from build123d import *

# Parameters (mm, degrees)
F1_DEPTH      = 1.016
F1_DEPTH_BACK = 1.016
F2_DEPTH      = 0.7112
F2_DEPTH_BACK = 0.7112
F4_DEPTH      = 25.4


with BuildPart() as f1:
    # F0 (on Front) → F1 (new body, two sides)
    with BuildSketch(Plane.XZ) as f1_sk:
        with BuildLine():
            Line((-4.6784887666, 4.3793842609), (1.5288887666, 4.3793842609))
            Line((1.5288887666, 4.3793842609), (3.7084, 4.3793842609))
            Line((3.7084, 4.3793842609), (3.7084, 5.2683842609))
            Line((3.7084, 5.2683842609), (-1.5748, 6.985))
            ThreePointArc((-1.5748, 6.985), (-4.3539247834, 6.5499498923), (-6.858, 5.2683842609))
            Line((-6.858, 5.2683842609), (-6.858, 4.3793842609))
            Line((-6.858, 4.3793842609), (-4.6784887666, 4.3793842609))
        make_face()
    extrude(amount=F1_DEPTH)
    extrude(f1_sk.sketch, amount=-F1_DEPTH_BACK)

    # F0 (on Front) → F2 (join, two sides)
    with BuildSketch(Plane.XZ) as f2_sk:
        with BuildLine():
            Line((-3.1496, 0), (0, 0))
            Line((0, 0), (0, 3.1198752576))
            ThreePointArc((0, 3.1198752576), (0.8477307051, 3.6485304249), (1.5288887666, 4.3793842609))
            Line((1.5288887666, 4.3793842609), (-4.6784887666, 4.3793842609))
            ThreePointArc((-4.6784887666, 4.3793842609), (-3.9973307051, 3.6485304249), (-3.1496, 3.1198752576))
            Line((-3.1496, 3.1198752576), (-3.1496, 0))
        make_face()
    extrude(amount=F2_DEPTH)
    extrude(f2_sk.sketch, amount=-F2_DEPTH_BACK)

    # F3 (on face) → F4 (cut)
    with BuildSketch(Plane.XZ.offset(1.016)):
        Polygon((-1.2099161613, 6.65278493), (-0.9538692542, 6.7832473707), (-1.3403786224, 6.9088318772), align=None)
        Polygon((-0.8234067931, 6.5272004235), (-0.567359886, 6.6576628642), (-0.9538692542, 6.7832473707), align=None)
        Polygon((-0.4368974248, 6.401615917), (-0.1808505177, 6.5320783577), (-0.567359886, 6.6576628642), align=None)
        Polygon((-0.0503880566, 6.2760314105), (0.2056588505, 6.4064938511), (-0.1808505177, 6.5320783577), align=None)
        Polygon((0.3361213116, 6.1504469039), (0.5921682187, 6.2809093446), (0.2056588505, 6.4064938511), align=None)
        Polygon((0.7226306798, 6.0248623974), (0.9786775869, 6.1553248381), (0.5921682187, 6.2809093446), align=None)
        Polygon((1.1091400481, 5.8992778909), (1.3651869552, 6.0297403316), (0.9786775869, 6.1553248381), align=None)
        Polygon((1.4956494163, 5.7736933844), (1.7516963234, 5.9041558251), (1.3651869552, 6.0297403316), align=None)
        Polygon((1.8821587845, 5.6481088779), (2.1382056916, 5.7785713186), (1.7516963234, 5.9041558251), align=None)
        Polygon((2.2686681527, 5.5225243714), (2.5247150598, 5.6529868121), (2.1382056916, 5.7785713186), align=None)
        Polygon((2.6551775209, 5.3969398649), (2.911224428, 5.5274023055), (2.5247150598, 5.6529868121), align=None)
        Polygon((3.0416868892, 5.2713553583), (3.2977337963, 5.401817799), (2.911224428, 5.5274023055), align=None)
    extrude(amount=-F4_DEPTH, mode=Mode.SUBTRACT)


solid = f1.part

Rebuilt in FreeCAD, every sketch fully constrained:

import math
import FreeCAD as App
import Part
import Sketcher
from FreeCAD import Vector
Q = App.Units.Quantity


def add_polygon(sketch, points):
    """Adds a closed chain of lines whose ends are joined by coincident constraints."""
    first, n = sketch.GeometryCount, len(points)
    for a, b in zip(points, points[1:] + points[:1]):
        sketch.addGeometry(Part.LineSegment(App.Vector(*a, 0), App.Vector(*b, 0)), False)
    for i in range(n):
        sketch.addConstraint(Sketcher.Constraint("Coincident", first + i, 2, first + (i + 1) % n, 1))

doc = App.newDocument("Part")
body = doc.addObject("PartDesign::Body", "Body")

sketch1 = body.newObject("Sketcher::SketchObject", "Sketch")
sketch1.AttachmentSupport = (doc.getObject("XZ_Plane"), [""])
sketch1.MapMode = "FlatFace"
sketch1.addGeometry(Part.LineSegment(Vector(3.7, 4.4, 0), Vector(3.7, 5.3, 0)), False)
sketch1.addGeometry(Part.LineSegment(Vector(3.7, 5.3, 0), Vector(-1.6, 7, 0)), False)
sketch1.addGeometry(Part.ArcOfCircle(Part.Circle(Vector(-1.6, -1.9, 0), Vector(0, 0, 1), 8.9), math.radians(90), math.radians(126)), False)
sketch1.addGeometry(Part.LineSegment(Vector(-6.9, 5.3, 0), Vector(-6.9, 4.4, 0)), False)
sketch1.addGeometry(Part.LineSegment(Vector(-6.9, 4.4, 0), Vector(3.7, 4.4, 0)), False)
sketch1.addConstraint(Sketcher.Constraint("Coincident", 0, 2, 1, 1))
sketch1.addConstraint(Sketcher.Constraint("Coincident", 1, 2, 2, 1))
sketch1.addConstraint(Sketcher.Constraint("Coincident", 2, 2, 3, 1))
sketch1.addConstraint(Sketcher.Constraint("Coincident", 3, 2, 4, 1))
sketch1.addConstraint(Sketcher.Constraint("Coincident", 4, 2, 0, 1))
sketch1.addConstraint(Sketcher.Constraint("Vertical", 0))
sketch1.addConstraint(Sketcher.Constraint("Vertical", 3))
sketch1.addConstraint(Sketcher.Constraint("Horizontal", 4))
sketch1.addConstraint(Sketcher.Constraint("Horizontal", 0, 2, 2, 2))
sketch1.addConstraint(Sketcher.Constraint("Radius", 2, Q("0.35 in")))
sketch1.addConstraint(Sketcher.Constraint("Angle", 1, Q("162 deg")))
sketch1.addConstraint(Sketcher.Constraint("DistanceX", 4, 1, 4, 2, Q("0.416 in")))
sketch1.addConstraint(Sketcher.Constraint("DistanceY", 0, 1, 0, 2, Q("0.035 in")))
sketch1.addConstraint(Sketcher.Constraint("DistanceX", 2, 2, -1, 1, Q("0.27 in")))
sketch1.addConstraint(Sketcher.Constraint("DistanceX", 1, 2, -1, 1, Q("0.062 in")))
sketch1.addConstraint(Sketcher.Constraint("DistanceY", -1, 1, 1, 2, Q("0.275 in")))
pad1 = body.newObject("PartDesign::Pad", "Pad")
pad1.Profile = sketch1
pad1.Type = "TwoLengths"
pad1.Length = Q("0.04 in")
pad1.Length2 = Q("0.04 in")

sketch2 = body.newObject("Sketcher::SketchObject", "Sketch001")
sketch2.AttachmentSupport = (doc.getObject("XZ_Plane"), [""])
sketch2.MapMode = "FlatFace"
sketch2.addGeometry(Part.LineSegment(Vector(-3.1, 0, 0), Vector(0, 0, 0)), False)
sketch2.addGeometry(Part.LineSegment(Vector(0, 0, 0), Vector(0, 3.1, 0)), False)
sketch2.addGeometry(Part.ArcOfCircle(Part.Circle(Vector(-1.6, 6.6, 0), Vector(0, 0, 1), 3.8), math.radians(-66), math.radians(-35)), False)
sketch2.addGeometry(Part.LineSegment(Vector(1.5, 4.4, 0), Vector(-4.7, 4.4, 0)), False)
sketch2.addGeometry(Part.ArcOfCircle(Part.Circle(Vector(-1.6, 6.6, 0), Vector(0, 0, 1), 3.8), math.radians(-145), math.radians(-114)), False)
sketch2.addGeometry(Part.LineSegment(Vector(-3.1, 3.1, 0), Vector(-3.1, 0, 0)), False)
sketch2.addConstraint(Sketcher.Constraint("Coincident", 0, 2, 1, 1))
sketch2.addConstraint(Sketcher.Constraint("Coincident", 1, 2, 2, 1))
sketch2.addConstraint(Sketcher.Constraint("Coincident", 2, 2, 3, 1))
sketch2.addConstraint(Sketcher.Constraint("Coincident", 3, 2, 4, 1))
sketch2.addConstraint(Sketcher.Constraint("Coincident", 4, 2, 5, 1))
sketch2.addConstraint(Sketcher.Constraint("Coincident", 5, 2, 0, 1))
sketch2.addConstraint(Sketcher.Constraint("Horizontal", 0))
sketch2.addConstraint(Sketcher.Constraint("Vertical", 1))
sketch2.addConstraint(Sketcher.Constraint("Horizontal", 3))
sketch2.addConstraint(Sketcher.Constraint("Vertical", 5))
sketch2.addConstraint(Sketcher.Constraint("Coincident", 0, 2, -1, 1))
sketch2.addConstraint(Sketcher.Constraint("Coincident", 4, 3, 2, 3))
sketch2.addConstraint(Sketcher.Constraint("Equal", 2, 4))
sketch2.addConstraint(Sketcher.Constraint("Horizontal", 1, 2, 4, 2))
sketch2.addConstraint(Sketcher.Constraint("Radius", 2, Q("0.15 in")))
sketch2.addConstraint(Sketcher.Constraint("DistanceX", 0, 1, 0, 2, Q("0.124 in")))
sketch2.addConstraint(Sketcher.Constraint("DistanceY", 2, 2, 2, 3, Q("0.087 in")))
sketch2.addConstraint(Sketcher.Constraint("DistanceY", 1, 1, 1, 2, 3.119875))
pad2 = body.newObject("PartDesign::Pad", "Pad001")
pad2.Profile = sketch2
pad2.Type = "TwoLengths"
pad2.Length = Q("0.028 in")
pad2.Length2 = Q("0.028 in")

sketch3 = body.newObject("Sketcher::SketchObject", "Sketch002")
sketch3.AttachmentSupport = (doc.getObject("XZ_Plane"), [""])
sketch3.MapMode = "FlatFace"
sketch3.AttachmentOffset = App.Placement(Vector(0, 0, 0.04 * 25.4), App.Rotation())
add_polygon(sketch3, [(-1.21, 6.65), (-0.95, 6.78), (-1.34, 6.91)])
add_polygon(sketch3, [(-0.82, 6.53), (-0.57, 6.66), (-0.95, 6.78)])
add_polygon(sketch3, [(-0.44, 6.4), (-0.18, 6.53), (-0.57, 6.66)])
add_polygon(sketch3, [(-0.05, 6.28), (0.21, 6.41), (-0.18, 6.53)])
add_polygon(sketch3, [(0.34, 6.15), (0.59, 6.28), (0.21, 6.41)])
add_polygon(sketch3, [(0.72, 6.02), (0.98, 6.16), (0.59, 6.28)])
add_polygon(sketch3, [(1.11, 5.9), (1.37, 6.03), (0.98, 6.16)])
add_polygon(sketch3, [(1.5, 5.77), (1.75, 5.9), (1.37, 6.03)])
add_polygon(sketch3, [(1.88, 5.65), (2.14, 5.78), (1.75, 5.9)])
add_polygon(sketch3, [(2.27, 5.52), (2.52, 5.65), (2.14, 5.78)])
add_polygon(sketch3, [(2.66, 5.4), (2.91, 5.53), (2.52, 5.65)])
add_polygon(sketch3, [(3.04, 5.27), (3.3, 5.4), (2.91, 5.53)])
sketch3.addConstraint(Sketcher.Constraint("Coincident", 4, 2, 0, 2))
sketch3.addConstraint(Sketcher.Constraint("Coincident", 7, 2, 3, 2))
sketch3.addConstraint(Sketcher.Constraint("Coincident", 10, 2, 6, 2))
sketch3.addConstraint(Sketcher.Constraint("Coincident", 13, 2, 9, 2))
sketch3.addConstraint(Sketcher.Constraint("Coincident", 16, 2, 12, 2))
sketch3.addConstraint(Sketcher.Constraint("Coincident", 19, 2, 15, 2))
sketch3.addConstraint(Sketcher.Constraint("Coincident", 22, 2, 18, 2))
sketch3.addConstraint(Sketcher.Constraint("Coincident", 25, 2, 21, 2))
sketch3.addConstraint(Sketcher.Constraint("Coincident", 28, 2, 24, 2))
sketch3.addConstraint(Sketcher.Constraint("Coincident", 31, 2, 27, 2))
sketch3.addConstraint(Sketcher.Constraint("Coincident", 34, 2, 30, 2))
sketch3.addConstraint(Sketcher.Constraint("Perpendicular", 0, 2))
sketch3.addConstraint(Sketcher.Constraint("Perpendicular", 2, 3))
sketch3.addConstraint(Sketcher.Constraint("Parallel", 1, 4))
sketch3.addConstraint(Sketcher.Constraint("Perpendicular", 3, 5))
sketch3.addConstraint(Sketcher.Constraint("Perpendicular", 5, 6))
sketch3.addConstraint(Sketcher.Constraint("Parallel", 4, 7))
sketch3.addConstraint(Sketcher.Constraint("Perpendicular", 6, 8))
sketch3.addConstraint(Sketcher.Constraint("Perpendicular", 8, 9))
sketch3.addConstraint(Sketcher.Constraint("Parallel", 7, 10))
sketch3.addConstraint(Sketcher.Constraint("Perpendicular", 9, 11))
sketch3.addConstraint(Sketcher.Constraint("Perpendicular", 11, 12))
sketch3.addConstraint(Sketcher.Constraint("Parallel", 10, 13))
sketch3.addConstraint(Sketcher.Constraint("Perpendicular", 12, 14))
sketch3.addConstraint(Sketcher.Constraint("Perpendicular", 14, 15))
sketch3.addConstraint(Sketcher.Constraint("Parallel", 13, 16))
sketch3.addConstraint(Sketcher.Constraint("Perpendicular", 15, 17))
sketch3.addConstraint(Sketcher.Constraint("Perpendicular", 17, 18))
sketch3.addConstraint(Sketcher.Constraint("Parallel", 16, 19))
sketch3.addConstraint(Sketcher.Constraint("Perpendicular", 18, 20))
sketch3.addConstraint(Sketcher.Constraint("Perpendicular", 20, 21))
sketch3.addConstraint(Sketcher.Constraint("Parallel", 19, 22))
sketch3.addConstraint(Sketcher.Constraint("Perpendicular", 21, 23))
sketch3.addConstraint(Sketcher.Constraint("Perpendicular", 23, 24))
sketch3.addConstraint(Sketcher.Constraint("Parallel", 22, 25))
sketch3.addConstraint(Sketcher.Constraint("Perpendicular", 24, 26))
sketch3.addConstraint(Sketcher.Constraint("Perpendicular", 26, 27))
sketch3.addConstraint(Sketcher.Constraint("Parallel", 25, 28))
sketch3.addConstraint(Sketcher.Constraint("Perpendicular", 27, 29))
sketch3.addConstraint(Sketcher.Constraint("Perpendicular", 29, 30))
sketch3.addConstraint(Sketcher.Constraint("Parallel", 28, 31))
sketch3.addConstraint(Sketcher.Constraint("Perpendicular", 30, 32))
sketch3.addConstraint(Sketcher.Constraint("Perpendicular", 32, 33))
sketch3.addConstraint(Sketcher.Constraint("Parallel", 31, 34))
sketch3.addConstraint(Sketcher.Constraint("Perpendicular", 33, 35))
sketch3.addConstraint(Sketcher.Constraint("Equal", 0, 2))
sketch3.addConstraint(Sketcher.Constraint("Equal", 2, 3))
sketch3.addConstraint(Sketcher.Constraint("Equal", 5, 6))
sketch3.addConstraint(Sketcher.Constraint("Equal", 8, 9))
sketch3.addConstraint(Sketcher.Constraint("Equal", 11, 12))
sketch3.addConstraint(Sketcher.Constraint("Equal", 14, 15))
sketch3.addConstraint(Sketcher.Constraint("Equal", 17, 18))
sketch3.addConstraint(Sketcher.Constraint("Equal", 20, 21))
sketch3.addConstraint(Sketcher.Constraint("Equal", 23, 24))
sketch3.addConstraint(Sketcher.Constraint("Equal", 26, 27))
sketch3.addConstraint(Sketcher.Constraint("Equal", 29, 30))
sketch3.addConstraint(Sketcher.Constraint("Equal", 32, 33))
sketch3.addConstraint(Sketcher.Constraint("Angle", 0, Q("27.000005 deg")))
sketch3.addConstraint(Sketcher.Constraint("Distance", 1, Q("0.016 in")))
sketch3.addConstraint(Sketcher.Constraint("DistanceY", -1, 1, 5, 2, 6.5272))
sketch3.addConstraint(Sketcher.Constraint("DistanceX", 0, 2, -1, 1, 0.953869))
pocket1 = body.newObject("PartDesign::Pocket", "Pocket")
pocket1.Profile = sketch3
pocket1.Length = Q("1 in")

doc.recompute()
